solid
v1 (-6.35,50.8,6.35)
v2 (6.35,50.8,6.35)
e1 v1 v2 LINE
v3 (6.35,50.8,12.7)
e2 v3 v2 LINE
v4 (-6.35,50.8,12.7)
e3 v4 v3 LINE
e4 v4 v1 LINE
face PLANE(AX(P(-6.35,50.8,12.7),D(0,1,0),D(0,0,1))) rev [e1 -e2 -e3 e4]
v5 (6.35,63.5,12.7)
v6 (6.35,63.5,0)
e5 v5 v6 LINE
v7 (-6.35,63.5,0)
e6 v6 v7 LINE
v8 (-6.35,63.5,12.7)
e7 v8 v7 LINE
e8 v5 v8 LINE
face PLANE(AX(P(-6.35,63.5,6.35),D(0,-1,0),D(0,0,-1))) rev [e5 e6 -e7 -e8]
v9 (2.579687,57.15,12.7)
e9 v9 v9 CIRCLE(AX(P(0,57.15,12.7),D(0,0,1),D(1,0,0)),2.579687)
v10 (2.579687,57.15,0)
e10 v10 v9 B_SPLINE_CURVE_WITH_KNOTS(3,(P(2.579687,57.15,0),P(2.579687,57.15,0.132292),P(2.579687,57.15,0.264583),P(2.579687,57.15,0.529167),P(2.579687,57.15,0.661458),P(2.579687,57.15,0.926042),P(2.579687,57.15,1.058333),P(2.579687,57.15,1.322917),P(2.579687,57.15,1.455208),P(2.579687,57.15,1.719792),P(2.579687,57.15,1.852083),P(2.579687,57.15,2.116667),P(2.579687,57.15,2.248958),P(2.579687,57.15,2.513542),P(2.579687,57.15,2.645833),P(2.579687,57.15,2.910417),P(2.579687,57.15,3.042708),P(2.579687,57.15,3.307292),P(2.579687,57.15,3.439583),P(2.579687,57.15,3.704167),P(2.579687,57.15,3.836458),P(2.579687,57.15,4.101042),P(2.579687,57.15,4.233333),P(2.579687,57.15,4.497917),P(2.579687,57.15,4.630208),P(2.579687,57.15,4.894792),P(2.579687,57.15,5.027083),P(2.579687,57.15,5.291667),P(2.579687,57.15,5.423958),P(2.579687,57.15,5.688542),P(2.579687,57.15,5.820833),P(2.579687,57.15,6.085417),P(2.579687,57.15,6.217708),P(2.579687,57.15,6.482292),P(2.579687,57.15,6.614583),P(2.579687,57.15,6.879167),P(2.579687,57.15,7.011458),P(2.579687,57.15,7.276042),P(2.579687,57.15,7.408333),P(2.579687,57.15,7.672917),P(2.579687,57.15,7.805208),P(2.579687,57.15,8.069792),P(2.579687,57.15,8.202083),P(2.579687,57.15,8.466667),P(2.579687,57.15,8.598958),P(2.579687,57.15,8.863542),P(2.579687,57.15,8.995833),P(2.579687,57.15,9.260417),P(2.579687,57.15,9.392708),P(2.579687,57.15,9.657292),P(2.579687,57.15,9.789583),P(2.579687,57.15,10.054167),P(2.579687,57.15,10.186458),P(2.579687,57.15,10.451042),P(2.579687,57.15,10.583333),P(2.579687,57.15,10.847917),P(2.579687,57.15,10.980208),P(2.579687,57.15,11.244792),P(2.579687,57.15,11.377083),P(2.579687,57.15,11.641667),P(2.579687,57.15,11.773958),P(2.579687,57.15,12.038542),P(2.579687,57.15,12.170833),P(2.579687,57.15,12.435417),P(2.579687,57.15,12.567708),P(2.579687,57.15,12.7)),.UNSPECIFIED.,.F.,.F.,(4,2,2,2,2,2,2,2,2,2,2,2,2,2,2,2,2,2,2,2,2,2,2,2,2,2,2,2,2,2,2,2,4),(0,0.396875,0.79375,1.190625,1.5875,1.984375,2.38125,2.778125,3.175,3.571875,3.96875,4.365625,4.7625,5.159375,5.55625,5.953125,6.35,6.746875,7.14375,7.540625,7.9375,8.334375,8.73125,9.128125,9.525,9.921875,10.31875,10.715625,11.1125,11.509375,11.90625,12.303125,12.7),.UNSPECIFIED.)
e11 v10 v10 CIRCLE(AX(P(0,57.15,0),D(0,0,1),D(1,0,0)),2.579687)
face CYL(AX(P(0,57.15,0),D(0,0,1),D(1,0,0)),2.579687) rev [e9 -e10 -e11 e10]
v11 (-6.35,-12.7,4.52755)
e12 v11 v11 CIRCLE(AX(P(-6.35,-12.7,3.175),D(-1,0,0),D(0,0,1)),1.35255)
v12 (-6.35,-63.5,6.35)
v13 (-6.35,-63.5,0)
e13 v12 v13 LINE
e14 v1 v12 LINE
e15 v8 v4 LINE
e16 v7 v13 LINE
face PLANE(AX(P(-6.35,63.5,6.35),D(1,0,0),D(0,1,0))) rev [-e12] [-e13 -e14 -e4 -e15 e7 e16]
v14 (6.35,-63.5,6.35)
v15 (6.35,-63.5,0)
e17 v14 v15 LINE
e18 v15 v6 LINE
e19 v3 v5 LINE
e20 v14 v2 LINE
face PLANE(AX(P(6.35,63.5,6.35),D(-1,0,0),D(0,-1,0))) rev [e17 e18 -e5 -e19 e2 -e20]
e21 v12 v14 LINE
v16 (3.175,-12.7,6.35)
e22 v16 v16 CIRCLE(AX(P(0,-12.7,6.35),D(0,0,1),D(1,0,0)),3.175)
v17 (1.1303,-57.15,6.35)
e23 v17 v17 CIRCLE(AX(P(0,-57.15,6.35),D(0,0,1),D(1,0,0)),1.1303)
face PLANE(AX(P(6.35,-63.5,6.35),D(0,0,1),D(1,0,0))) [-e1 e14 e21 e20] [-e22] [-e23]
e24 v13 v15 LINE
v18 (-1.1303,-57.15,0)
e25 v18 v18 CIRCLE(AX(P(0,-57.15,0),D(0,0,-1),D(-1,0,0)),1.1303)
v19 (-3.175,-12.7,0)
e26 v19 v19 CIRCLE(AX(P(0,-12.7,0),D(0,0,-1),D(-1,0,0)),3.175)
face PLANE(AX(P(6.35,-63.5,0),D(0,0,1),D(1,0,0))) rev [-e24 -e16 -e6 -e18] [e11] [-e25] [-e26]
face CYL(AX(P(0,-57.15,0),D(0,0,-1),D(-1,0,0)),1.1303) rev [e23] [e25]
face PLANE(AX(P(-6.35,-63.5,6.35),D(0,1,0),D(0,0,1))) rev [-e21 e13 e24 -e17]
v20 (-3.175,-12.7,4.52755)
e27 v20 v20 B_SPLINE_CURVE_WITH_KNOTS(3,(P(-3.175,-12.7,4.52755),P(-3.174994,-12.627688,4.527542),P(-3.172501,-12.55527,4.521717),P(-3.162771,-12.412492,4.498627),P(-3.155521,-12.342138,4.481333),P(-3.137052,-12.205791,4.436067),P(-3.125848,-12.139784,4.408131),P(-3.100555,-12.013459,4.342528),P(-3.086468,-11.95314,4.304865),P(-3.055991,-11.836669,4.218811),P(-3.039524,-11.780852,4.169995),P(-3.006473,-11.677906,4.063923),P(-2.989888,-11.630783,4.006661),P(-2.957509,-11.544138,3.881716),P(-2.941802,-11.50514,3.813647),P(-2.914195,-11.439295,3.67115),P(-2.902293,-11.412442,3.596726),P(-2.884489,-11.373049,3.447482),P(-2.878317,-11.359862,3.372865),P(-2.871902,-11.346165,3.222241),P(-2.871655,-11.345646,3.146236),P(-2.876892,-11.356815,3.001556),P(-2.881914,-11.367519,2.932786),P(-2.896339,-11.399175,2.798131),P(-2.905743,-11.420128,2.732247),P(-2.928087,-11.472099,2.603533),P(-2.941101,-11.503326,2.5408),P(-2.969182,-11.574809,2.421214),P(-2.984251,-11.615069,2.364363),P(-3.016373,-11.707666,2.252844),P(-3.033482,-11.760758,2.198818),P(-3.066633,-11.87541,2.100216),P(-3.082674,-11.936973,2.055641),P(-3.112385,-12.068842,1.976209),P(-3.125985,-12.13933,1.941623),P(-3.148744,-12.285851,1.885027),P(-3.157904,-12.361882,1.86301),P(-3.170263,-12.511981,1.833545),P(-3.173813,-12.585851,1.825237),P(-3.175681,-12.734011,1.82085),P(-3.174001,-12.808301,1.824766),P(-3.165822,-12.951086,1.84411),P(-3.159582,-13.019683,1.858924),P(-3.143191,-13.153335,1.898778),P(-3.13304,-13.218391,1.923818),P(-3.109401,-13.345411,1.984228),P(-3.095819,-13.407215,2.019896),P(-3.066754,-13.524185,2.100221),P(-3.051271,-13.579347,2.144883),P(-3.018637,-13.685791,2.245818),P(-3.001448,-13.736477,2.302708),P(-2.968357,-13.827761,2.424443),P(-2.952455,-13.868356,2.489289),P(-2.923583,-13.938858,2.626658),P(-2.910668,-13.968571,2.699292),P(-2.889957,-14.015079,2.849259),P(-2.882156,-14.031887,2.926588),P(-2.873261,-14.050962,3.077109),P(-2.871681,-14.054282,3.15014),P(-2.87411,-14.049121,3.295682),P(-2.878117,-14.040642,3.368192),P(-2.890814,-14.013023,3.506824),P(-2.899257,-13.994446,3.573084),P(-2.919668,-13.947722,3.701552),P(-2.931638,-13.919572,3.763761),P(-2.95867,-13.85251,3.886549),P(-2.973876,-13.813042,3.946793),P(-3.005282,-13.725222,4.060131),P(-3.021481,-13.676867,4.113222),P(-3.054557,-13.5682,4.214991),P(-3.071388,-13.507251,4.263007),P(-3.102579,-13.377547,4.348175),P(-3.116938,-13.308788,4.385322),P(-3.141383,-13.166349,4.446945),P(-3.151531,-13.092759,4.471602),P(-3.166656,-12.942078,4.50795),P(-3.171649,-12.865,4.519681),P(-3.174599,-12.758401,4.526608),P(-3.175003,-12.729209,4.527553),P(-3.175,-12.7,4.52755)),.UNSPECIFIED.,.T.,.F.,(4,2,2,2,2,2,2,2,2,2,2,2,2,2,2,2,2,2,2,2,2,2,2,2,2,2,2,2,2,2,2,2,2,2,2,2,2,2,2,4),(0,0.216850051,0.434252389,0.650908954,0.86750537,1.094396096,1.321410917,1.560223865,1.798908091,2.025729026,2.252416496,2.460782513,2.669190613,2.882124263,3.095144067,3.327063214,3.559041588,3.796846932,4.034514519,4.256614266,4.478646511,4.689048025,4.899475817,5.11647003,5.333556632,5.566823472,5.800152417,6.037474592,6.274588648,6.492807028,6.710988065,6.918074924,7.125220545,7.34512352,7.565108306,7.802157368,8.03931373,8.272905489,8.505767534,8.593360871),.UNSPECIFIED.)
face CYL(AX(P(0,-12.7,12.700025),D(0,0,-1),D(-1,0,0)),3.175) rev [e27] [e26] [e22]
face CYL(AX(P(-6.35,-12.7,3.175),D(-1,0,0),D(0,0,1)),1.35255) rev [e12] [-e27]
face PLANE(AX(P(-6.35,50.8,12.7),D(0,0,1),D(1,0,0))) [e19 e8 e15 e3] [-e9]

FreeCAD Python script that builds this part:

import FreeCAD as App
import Part
import Sketcher
Q = App.Units.Quantity

doc = App.newDocument("Part")
body = doc.addObject("PartDesign::Body", "Body")

# Sketch on XY plane
sketch1 = body.newObject("Sketcher::SketchObject", "Sketch")
sketch1.AttachmentSupport = (doc.getObject("XY_Plane"), [""])
sketch1.MapMode = "FlatFace"
sketch1.addGeometry(Part.LineSegment(App.Vector(-6, 64, 0), App.Vector(-6, -64, 0)), False)
sketch1.addGeometry(Part.LineSegment(App.Vector(-6, -64, 0), App.Vector(6, -64, 0)), False)
sketch1.addGeometry(Part.LineSegment(App.Vector(6, -64, 0), App.Vector(6, 64, 0)), False)
sketch1.addGeometry(Part.LineSegment(App.Vector(6, 64, 0), App.Vector(-6, 64, 0)), False)
sketch1.addConstraint(Sketcher.Constraint("Coincident", 0, 2, 1, 1))
sketch1.addConstraint(Sketcher.Constraint("Coincident", 1, 2, 2, 1))
sketch1.addConstraint(Sketcher.Constraint("Coincident", 2, 2, 3, 1))
sketch1.addConstraint(Sketcher.Constraint("Coincident", 3, 2, 0, 1))
sketch1.addConstraint(Sketcher.Constraint("Vertical", 0))
sketch1.addConstraint(Sketcher.Constraint("Horizontal", 1))
sketch1.addConstraint(Sketcher.Constraint("Vertical", 2))
sketch1.addConstraint(Sketcher.Constraint("Horizontal", 3))
sketch1.addConstraint(Sketcher.Constraint("Symmetric", 0, 2, 2, 2, -1, 1))
sketch1.addConstraint(Sketcher.Constraint("DistanceY", 0, 2, 0, 1, Q("5 in")))
sketch1.addConstraint(Sketcher.Constraint("DistanceX", 1, 1, 1, 2, Q("0.5 in")))
pad1 = body.newObject("PartDesign::Pad", "Pad")
pad1.Profile = sketch1
pad1.Length = Q("0.25 in")

# Sketch on XY plane
sketch2 = body.newObject("Sketcher::SketchObject", "Sketch001")
sketch2.AttachmentSupport = (doc.getObject("XY_Plane"), [""])
sketch2.MapMode = "FlatFace"
sketch2.AttachmentOffset = App.Placement(App.Vector(0, 0, 0.25 * 25.4), App.Rotation())
sketch2.addGeometry(Part.LineSegment(App.Vector(-6, 64, 0), App.Vector(-6, 51, 0)), False)
sketch2.addGeometry(Part.LineSegment(App.Vector(-6, 51, 0), App.Vector(6, 51, 0)), False)
sketch2.addGeometry(Part.LineSegment(App.Vector(6, 51, 0), App.Vector(6, 64, 0)), False)
sketch2.addGeometry(Part.LineSegment(App.Vector(6, 64, 0), App.Vector(-6, 64, 0)), False)
sketch2.addConstraint(Sketcher.Constraint("Coincident", 0, 2, 1, 1))
sketch2.addConstraint(Sketcher.Constraint("Coincident", 1, 2, 2, 1))
sketch2.addConstraint(Sketcher.Constraint("Coincident", 2, 2, 3, 1))
sketch2.addConstraint(Sketcher.Constraint("Coincident", 3, 2, 0, 1))
sketch2.addConstraint(Sketcher.Constraint("Vertical", 0))
sketch2.addConstraint(Sketcher.Constraint("Horizontal", 1))
sketch2.addConstraint(Sketcher.Constraint("Vertical", 2))
sketch2.addConstraint(Sketcher.Constraint("Horizontal", 3))
sketch2.addConstraint(Sketcher.Constraint("Equal", 3, 0))
sketch2.addConstraint(Sketcher.Constraint("DistanceX", 1, 1, 1, 2, Q("0.5 in")))
sketch2.addConstraint(Sketcher.Constraint("DistanceY", -1, 1, 0, 2, Q("2 in")))
sketch2.addConstraint(Sketcher.Constraint("DistanceX", 0, 2, -1, 1, Q("0.25 in")))
pad2 = body.newObject("PartDesign::Pad", "Pad001")
pad2.Profile = sketch2
pad2.Length = Q("0.25 in")

# Sketch on XY plane
sketch3 = body.newObject("Sketcher::SketchObject", "Sketch002")
sketch3.AttachmentSupport = (doc.getObject("XY_Plane"), [""])
sketch3.MapMode = "FlatFace"
sketch3.addGeometry(Part.Circle(App.Vector(0, -12.7, 0), App.Vector(0, 0, 1), 3.2), False)
sketch3.addConstraint(Sketcher.Constraint("PointOnObject", 0, 3, -2))
sketch3.addConstraint(Sketcher.Constraint("Diameter", 0, Q("0.25 in")))
sketch3.addConstraint(Sketcher.Constraint("DistanceY", 0, 3, -1, 1, Q("0.5 in")))
pocket1 = body.newObject("PartDesign::Pocket", "Pocket")
pocket1.Profile = sketch3
pocket1.Type = "ThroughAll"
pocket1.Reversed = True

# Sketch on XY plane
sketch4 = body.newObject("Sketcher::SketchObject", "Sketch003")
sketch4.AttachmentSupport = (doc.getObject("XY_Plane"), [""])
sketch4.MapMode = "FlatFace"
sketch4.addGeometry(Part.Circle(App.Vector(0, -57.1, 0), App.Vector(0, 0, 1), 1.1), False)
sketch4.addConstraint(Sketcher.Constraint("PointOnObject", 0, 3, -2))
sketch4.addConstraint(Sketcher.Constraint("Diameter", 0, Q("0.089 in")))
sketch4.addConstraint(Sketcher.Constraint("DistanceY", 0, 3, -1, 1, Q("2.25 in")))
doc.recompute()
hole = body.newObject("PartDesign::Hole", "Hole")
hole.Profile = sketch4
hole.ThreadType = "None"
hole.Diameter = Q("0.089 in")
hole.DepthType = "ThroughAll"
hole.Reversed = True

# Sketch on XY plane
sketch5 = body.newObject("Sketcher::SketchObject", "Sketch004")
sketch5.AttachmentSupport = (doc.getObject("XY_Plane"), [""])
sketch5.MapMode = "FlatFace"
sketch5.AttachmentOffset = App.Placement(App.Vector(0, 0, 0.5 * 25.4), App.Rotation())
sketch5.addGeometry(Part.Circle(App.Vector(0, 57.1, 0), App.Vector(0, 0, 1), 2.6), False)
sketch5.addConstraint(Sketcher.Constraint("PointOnObject", 0, 3, -2))
sketch5.addConstraint(Sketcher.Constraint("Diameter", 0, Q("0.203125 in")))
sketch5.addConstraint(Sketcher.Constraint("DistanceY", -1, 1, 0, 3, Q("2.25 in")))
pocket2 = body.newObject("PartDesign::Pocket", "Pocket001")
pocket2.Profile = sketch5
pocket2.Length = 66.068137

# Sketch on YZ plane
sketch6 = body.newObject("Sketcher::SketchObject", "Sketch005")
sketch6.AttachmentSupport = (doc.getObject("YZ_Plane"), [""])
sketch6.MapMode = "FlatFace"
sketch6.AttachmentOffset = App.Placement(App.Vector(0, 0, -0.25 * 25.4), App.Rotation())
sketch6.addGeometry(Part.Circle(App.Vector(-12.7, 3.2, 0), App.Vector(0, 0, 1), 1.4), False)
sketch6.addConstraint(Sketcher.Constraint("Diameter", 0, Q("0.1065 in")))
sketch6.addConstraint(Sketcher.Constraint("DistanceX", 0, 3, -1, 1, Q("0.5 in")))
sketch6.addConstraint(Sketcher.Constraint("DistanceY", -1, 1, 0, 3, Q("0.125 in")))
doc.recompute()
hole2 = body.newObject("PartDesign::Hole", "Hole001")
hole2.Profile = sketch6
hole2.ThreadType = "None"
hole2.Diameter = Q("0.1065 in")
hole2.DepthType = "Dimension"
hole2.Depth = 6.349
hole2.DrillPoint = "Angled"
hole2.DrillPointAngle = 118
hole2.Reversed = True

doc.recompute()
